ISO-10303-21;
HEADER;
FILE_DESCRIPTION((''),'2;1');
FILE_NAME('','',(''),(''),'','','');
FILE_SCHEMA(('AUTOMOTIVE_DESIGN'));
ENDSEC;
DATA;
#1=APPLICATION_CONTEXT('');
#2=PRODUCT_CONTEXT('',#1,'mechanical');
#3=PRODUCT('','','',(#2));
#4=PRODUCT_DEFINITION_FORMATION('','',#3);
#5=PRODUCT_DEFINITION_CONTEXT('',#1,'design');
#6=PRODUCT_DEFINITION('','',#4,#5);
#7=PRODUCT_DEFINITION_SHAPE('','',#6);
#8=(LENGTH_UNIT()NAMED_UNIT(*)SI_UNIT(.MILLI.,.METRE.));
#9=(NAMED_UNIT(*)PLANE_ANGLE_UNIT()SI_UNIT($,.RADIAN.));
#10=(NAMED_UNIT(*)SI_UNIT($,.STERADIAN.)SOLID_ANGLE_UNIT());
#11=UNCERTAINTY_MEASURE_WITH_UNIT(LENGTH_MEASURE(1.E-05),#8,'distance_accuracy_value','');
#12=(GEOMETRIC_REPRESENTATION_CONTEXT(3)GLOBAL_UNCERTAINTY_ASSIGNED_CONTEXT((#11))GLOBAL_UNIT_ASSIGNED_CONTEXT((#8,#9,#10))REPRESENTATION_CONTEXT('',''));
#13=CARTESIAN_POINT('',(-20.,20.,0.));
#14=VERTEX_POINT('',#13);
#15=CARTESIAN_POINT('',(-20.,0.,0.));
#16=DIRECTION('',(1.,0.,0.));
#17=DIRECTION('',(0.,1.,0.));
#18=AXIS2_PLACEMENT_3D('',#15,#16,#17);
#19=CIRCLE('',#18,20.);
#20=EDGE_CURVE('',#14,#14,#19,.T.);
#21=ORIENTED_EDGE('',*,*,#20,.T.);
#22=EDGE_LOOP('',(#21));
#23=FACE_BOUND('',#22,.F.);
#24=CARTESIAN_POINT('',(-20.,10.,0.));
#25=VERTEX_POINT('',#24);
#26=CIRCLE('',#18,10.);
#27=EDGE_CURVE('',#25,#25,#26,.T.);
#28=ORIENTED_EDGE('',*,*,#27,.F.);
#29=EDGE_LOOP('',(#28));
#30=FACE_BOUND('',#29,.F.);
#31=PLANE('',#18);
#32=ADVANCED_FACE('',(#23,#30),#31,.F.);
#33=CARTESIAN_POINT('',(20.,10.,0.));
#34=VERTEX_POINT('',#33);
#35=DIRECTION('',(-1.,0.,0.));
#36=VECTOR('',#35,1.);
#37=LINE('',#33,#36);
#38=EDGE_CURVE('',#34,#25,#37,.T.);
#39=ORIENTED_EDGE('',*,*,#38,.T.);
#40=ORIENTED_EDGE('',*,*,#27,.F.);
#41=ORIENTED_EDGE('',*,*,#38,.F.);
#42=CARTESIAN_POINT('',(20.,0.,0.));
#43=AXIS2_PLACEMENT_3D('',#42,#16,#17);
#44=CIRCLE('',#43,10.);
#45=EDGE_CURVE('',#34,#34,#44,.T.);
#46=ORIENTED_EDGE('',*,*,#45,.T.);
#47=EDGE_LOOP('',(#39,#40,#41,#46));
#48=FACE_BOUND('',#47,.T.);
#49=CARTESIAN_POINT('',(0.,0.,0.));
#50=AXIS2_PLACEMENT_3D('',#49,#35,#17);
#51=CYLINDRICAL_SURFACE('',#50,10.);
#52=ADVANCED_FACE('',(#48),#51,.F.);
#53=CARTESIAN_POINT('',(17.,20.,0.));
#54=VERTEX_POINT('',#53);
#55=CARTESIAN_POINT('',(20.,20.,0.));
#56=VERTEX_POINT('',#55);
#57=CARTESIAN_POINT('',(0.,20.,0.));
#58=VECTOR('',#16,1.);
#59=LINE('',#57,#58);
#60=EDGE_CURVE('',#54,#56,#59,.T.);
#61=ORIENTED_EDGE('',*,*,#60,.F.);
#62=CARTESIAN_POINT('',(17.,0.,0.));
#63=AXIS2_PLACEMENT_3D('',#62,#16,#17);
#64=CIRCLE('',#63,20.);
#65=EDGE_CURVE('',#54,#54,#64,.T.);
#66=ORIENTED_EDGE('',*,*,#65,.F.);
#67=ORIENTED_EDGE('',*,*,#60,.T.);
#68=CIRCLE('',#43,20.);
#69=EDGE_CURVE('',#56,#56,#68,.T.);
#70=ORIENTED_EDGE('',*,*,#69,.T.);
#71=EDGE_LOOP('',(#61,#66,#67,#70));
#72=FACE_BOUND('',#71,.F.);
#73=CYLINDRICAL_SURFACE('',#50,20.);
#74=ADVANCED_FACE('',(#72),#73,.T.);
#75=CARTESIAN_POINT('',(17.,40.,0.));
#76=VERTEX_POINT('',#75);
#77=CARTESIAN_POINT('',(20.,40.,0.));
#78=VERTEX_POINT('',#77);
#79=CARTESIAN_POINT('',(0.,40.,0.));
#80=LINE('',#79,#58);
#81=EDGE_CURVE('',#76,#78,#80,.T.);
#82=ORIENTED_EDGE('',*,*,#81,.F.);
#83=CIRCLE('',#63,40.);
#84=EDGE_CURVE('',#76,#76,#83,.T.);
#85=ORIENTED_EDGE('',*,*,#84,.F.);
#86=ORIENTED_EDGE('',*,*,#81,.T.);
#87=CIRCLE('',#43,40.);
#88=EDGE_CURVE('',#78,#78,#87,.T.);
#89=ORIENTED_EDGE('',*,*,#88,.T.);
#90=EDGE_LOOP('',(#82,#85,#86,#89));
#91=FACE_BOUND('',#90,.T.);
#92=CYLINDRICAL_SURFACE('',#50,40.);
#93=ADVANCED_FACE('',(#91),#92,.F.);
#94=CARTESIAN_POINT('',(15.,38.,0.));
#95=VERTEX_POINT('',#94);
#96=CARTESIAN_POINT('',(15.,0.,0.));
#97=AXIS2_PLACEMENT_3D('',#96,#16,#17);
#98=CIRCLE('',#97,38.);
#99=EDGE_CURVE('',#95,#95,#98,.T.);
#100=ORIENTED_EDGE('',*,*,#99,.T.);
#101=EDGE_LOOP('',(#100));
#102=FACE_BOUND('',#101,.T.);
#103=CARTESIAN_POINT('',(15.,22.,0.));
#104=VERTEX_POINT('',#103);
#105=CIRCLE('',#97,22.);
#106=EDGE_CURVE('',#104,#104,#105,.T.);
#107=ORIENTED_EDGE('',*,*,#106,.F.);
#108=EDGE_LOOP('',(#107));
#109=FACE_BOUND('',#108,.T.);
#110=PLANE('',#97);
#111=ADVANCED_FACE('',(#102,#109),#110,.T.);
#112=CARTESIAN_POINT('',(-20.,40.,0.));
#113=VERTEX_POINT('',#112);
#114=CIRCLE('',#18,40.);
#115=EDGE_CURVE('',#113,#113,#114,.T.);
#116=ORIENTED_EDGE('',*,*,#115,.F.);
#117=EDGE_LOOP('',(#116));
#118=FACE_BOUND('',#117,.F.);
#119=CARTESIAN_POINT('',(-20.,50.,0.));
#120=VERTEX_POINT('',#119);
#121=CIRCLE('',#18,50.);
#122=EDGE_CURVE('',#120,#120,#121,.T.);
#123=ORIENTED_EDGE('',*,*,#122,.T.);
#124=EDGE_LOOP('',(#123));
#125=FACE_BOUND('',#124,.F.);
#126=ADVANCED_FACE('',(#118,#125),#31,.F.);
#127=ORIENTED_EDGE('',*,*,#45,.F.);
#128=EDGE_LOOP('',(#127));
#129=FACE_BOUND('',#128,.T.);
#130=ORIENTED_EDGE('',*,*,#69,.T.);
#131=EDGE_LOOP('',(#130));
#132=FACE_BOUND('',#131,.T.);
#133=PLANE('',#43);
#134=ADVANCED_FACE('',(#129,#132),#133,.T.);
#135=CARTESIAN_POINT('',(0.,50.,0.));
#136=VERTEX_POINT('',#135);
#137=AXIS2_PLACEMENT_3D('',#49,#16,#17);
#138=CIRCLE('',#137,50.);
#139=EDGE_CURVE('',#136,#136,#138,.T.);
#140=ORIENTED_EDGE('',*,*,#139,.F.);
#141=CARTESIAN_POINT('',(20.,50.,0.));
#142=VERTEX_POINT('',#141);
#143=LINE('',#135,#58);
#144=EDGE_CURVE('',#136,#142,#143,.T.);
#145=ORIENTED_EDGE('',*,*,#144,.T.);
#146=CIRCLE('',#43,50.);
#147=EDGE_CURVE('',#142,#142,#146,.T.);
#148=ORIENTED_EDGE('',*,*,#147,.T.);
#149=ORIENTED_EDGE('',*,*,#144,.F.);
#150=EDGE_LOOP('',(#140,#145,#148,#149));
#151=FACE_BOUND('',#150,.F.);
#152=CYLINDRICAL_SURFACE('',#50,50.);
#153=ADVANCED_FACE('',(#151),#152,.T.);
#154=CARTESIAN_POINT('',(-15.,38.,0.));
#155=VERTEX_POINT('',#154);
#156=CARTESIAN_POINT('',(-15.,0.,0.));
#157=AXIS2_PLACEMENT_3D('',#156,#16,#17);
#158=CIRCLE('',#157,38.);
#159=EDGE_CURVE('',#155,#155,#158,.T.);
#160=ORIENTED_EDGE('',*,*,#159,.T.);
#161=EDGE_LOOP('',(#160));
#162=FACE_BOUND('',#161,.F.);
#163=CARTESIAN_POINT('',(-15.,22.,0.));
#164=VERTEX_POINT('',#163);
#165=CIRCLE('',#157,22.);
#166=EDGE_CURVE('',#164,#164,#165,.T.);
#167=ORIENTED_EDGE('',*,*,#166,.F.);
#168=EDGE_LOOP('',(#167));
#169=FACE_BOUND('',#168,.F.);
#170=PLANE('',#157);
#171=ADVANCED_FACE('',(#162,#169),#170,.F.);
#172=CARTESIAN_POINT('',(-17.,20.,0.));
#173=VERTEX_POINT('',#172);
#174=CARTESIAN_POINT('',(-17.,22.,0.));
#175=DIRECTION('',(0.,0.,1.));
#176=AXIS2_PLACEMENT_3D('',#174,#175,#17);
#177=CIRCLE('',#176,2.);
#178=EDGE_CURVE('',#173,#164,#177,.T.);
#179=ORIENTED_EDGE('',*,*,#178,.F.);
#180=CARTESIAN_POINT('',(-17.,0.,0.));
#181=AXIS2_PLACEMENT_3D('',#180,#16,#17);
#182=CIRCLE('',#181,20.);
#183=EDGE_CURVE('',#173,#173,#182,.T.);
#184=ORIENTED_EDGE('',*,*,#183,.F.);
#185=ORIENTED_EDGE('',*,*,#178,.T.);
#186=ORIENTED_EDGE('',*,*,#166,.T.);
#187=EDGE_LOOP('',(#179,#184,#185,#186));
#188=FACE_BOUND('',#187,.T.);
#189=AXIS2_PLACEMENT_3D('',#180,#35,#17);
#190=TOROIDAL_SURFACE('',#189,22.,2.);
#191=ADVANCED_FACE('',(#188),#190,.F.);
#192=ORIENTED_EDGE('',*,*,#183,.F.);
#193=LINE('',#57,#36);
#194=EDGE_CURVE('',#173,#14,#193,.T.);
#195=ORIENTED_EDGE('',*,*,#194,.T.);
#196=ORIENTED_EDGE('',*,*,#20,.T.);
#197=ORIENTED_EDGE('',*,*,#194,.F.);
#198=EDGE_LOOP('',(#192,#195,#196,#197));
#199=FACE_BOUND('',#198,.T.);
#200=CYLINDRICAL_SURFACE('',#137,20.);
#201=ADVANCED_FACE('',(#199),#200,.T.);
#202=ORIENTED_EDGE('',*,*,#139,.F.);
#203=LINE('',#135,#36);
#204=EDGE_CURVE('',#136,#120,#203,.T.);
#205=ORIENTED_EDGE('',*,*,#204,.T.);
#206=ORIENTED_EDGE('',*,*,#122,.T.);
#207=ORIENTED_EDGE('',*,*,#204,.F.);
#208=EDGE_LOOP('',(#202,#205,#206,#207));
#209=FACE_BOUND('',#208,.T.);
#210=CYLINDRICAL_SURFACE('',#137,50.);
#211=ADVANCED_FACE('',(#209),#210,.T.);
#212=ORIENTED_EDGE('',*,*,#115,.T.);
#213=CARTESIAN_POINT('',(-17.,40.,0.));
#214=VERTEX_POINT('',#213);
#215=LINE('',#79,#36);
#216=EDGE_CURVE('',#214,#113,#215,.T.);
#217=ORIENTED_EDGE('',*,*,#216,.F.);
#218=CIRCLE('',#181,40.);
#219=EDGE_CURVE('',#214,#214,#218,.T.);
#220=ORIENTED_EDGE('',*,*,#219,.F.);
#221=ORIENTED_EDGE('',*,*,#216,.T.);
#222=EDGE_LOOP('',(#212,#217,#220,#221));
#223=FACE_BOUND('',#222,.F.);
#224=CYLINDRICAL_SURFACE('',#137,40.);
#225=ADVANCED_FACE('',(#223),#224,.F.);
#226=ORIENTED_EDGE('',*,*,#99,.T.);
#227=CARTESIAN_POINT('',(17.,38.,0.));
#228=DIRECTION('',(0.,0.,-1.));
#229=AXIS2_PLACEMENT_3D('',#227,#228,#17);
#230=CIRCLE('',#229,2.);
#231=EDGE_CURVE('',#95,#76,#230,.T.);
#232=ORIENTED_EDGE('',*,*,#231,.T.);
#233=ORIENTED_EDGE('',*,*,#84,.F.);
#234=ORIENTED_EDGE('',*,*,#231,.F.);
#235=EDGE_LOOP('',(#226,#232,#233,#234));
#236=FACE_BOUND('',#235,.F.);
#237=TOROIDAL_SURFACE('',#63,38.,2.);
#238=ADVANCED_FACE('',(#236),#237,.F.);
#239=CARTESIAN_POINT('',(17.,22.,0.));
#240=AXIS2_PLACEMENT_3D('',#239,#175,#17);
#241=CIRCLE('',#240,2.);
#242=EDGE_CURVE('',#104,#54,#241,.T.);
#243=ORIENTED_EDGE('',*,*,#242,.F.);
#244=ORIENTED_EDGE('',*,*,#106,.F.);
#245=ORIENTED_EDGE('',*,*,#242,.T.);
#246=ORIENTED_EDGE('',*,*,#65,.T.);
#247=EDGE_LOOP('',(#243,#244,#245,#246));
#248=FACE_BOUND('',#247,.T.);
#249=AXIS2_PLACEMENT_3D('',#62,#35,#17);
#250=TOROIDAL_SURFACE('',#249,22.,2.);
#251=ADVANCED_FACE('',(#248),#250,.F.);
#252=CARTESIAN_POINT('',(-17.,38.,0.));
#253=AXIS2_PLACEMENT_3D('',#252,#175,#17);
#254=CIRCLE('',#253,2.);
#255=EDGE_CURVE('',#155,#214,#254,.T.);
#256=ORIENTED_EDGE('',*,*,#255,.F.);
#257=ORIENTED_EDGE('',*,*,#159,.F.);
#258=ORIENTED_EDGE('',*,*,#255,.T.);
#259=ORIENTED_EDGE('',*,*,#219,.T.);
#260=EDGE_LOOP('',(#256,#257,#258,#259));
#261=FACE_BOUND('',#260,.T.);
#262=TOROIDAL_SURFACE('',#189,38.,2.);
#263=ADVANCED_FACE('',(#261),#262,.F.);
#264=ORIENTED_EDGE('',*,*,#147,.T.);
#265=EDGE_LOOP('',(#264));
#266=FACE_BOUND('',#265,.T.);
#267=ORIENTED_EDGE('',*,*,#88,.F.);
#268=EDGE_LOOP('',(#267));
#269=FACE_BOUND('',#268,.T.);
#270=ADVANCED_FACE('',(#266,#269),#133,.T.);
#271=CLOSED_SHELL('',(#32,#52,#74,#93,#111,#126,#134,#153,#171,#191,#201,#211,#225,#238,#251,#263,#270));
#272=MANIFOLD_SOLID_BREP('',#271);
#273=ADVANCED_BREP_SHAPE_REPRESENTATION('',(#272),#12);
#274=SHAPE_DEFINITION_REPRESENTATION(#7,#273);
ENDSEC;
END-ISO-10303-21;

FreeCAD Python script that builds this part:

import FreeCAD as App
import Part
import Sketcher


def edges_at(feature, points):
    """Names of the edges that pass closest to the given points."""
    edges = feature.Shape.Edges
    near = lambda p: min(range(len(edges)), key=lambda i: edges[i].distToShape(Part.Vertex(*p))[0])
    return sorted({f"Edge{near(p) + 1}" for p in points})

doc = App.newDocument("Part")
body = doc.addObject("PartDesign::Body", "Body")
body.AllowCompound = True

# Sketch on YZ plane
sketch1 = doc.addObject("Sketcher::SketchObject", "Sketch")
body.addObject(sketch1)
sketch1.AttachmentSupport = (doc.YZ_Plane, [""])
sketch1.MapMode = "FlatFace"
sketch1.addGeometry(Part.Circle(App.Vector(0, 0, 0), App.Vector(0, 0, 1), 20), False)
sketch1.addGeometry(Part.Circle(App.Vector(0, 0, 0), App.Vector(0, 0, 1), 10), False)
sketch1.addGeometry(Part.Circle(App.Vector(0, 0, 0), App.Vector(0, 0, 1), 50), False)
sketch1.addGeometry(Part.Circle(App.Vector(0, 0, 0), App.Vector(0, 0, 1), 40), False)
sketch1.addConstraint(Sketcher.Constraint("Coincident", 0, 3, -1, 1))
sketch1.addConstraint(Sketcher.Constraint("Coincident", 1, 3, -1, 1))
sketch1.addConstraint(Sketcher.Constraint("Coincident", 2, 3, -1, 1))
sketch1.addConstraint(Sketcher.Constraint("Coincident", 3, 3, -1, 1))
sketch1.addConstraint(Sketcher.Constraint("Diameter", 0, 40.0))
sketch1.addConstraint(Sketcher.Constraint("Diameter", 1, 20.0))
sketch1.addConstraint(Sketcher.Constraint("Diameter", 2, 100.0))
sketch1.addConstraint(Sketcher.Constraint("Diameter", 3, 80.0))
pad1 = doc.addObject("PartDesign::Pad", "Pad")
body.addObject(pad1)
pad1.Profile = sketch1
pad1.Length = 40
pad1.Midplane = True

# Sketch on YZ plane
sketch2 = doc.addObject("Sketcher::SketchObject", "Sketch001")
body.addObject(sketch2)
sketch2.AttachmentSupport = (doc.YZ_Plane, [""])
sketch2.MapMode = "FlatFace"
sketch2.addGeometry(Part.Circle(App.Vector(0, 0, 0), App.Vector(0, 0, 1), 40), False)
sketch2.addGeometry(Part.Circle(App.Vector(0, 0, 0), App.Vector(0, 0, 1), 20), False)
sketch2.addConstraint(Sketcher.Constraint("Coincident", 0, 3, -1, 1))
sketch2.addConstraint(Sketcher.Constraint("Coincident", 1, 3, -1, 1))
sketch2.addConstraint(Sketcher.Constraint("Diameter", 0, 80.0))
sketch2.addConstraint(Sketcher.Constraint("Diameter", 1, 40.0))
pad2 = doc.addObject("PartDesign::Pad", "Pad001")
body.addObject(pad2)
pad2.Profile = sketch2
pad2.Length = 30
pad2.Midplane = True
doc.recompute()

fillet = doc.addObject("PartDesign::Fillet", "Fillet")
body.addObject(fillet)
fillet.Base = (pad2, edges_at(pad2, [(15, -40, 0)]))
fillet.Radius = 2
doc.recompute()

fillet2 = doc.addObject("PartDesign::Fillet", "Fillet001")
body.addObject(fillet2)
fillet2.Base = (fillet, edges_at(fillet, [(15, -20, 0)]))
fillet2.Radius = 2
doc.recompute()

fillet3 = doc.addObject("PartDesign::Fillet", "Fillet002")
body.addObject(fillet3)
fillet3.Base = (fillet2, edges_at(fillet2, [(-15, -20, 0)]))
fillet3.Radius = 2
doc.recompute()

fillet4 = doc.addObject("PartDesign::Fillet", "Fillet003")
body.addObject(fillet4)
fillet4.Base = (fillet3, edges_at(fillet3, [(-15, -40, 0)]))
fillet4.Radius = 2

doc.recompute()
